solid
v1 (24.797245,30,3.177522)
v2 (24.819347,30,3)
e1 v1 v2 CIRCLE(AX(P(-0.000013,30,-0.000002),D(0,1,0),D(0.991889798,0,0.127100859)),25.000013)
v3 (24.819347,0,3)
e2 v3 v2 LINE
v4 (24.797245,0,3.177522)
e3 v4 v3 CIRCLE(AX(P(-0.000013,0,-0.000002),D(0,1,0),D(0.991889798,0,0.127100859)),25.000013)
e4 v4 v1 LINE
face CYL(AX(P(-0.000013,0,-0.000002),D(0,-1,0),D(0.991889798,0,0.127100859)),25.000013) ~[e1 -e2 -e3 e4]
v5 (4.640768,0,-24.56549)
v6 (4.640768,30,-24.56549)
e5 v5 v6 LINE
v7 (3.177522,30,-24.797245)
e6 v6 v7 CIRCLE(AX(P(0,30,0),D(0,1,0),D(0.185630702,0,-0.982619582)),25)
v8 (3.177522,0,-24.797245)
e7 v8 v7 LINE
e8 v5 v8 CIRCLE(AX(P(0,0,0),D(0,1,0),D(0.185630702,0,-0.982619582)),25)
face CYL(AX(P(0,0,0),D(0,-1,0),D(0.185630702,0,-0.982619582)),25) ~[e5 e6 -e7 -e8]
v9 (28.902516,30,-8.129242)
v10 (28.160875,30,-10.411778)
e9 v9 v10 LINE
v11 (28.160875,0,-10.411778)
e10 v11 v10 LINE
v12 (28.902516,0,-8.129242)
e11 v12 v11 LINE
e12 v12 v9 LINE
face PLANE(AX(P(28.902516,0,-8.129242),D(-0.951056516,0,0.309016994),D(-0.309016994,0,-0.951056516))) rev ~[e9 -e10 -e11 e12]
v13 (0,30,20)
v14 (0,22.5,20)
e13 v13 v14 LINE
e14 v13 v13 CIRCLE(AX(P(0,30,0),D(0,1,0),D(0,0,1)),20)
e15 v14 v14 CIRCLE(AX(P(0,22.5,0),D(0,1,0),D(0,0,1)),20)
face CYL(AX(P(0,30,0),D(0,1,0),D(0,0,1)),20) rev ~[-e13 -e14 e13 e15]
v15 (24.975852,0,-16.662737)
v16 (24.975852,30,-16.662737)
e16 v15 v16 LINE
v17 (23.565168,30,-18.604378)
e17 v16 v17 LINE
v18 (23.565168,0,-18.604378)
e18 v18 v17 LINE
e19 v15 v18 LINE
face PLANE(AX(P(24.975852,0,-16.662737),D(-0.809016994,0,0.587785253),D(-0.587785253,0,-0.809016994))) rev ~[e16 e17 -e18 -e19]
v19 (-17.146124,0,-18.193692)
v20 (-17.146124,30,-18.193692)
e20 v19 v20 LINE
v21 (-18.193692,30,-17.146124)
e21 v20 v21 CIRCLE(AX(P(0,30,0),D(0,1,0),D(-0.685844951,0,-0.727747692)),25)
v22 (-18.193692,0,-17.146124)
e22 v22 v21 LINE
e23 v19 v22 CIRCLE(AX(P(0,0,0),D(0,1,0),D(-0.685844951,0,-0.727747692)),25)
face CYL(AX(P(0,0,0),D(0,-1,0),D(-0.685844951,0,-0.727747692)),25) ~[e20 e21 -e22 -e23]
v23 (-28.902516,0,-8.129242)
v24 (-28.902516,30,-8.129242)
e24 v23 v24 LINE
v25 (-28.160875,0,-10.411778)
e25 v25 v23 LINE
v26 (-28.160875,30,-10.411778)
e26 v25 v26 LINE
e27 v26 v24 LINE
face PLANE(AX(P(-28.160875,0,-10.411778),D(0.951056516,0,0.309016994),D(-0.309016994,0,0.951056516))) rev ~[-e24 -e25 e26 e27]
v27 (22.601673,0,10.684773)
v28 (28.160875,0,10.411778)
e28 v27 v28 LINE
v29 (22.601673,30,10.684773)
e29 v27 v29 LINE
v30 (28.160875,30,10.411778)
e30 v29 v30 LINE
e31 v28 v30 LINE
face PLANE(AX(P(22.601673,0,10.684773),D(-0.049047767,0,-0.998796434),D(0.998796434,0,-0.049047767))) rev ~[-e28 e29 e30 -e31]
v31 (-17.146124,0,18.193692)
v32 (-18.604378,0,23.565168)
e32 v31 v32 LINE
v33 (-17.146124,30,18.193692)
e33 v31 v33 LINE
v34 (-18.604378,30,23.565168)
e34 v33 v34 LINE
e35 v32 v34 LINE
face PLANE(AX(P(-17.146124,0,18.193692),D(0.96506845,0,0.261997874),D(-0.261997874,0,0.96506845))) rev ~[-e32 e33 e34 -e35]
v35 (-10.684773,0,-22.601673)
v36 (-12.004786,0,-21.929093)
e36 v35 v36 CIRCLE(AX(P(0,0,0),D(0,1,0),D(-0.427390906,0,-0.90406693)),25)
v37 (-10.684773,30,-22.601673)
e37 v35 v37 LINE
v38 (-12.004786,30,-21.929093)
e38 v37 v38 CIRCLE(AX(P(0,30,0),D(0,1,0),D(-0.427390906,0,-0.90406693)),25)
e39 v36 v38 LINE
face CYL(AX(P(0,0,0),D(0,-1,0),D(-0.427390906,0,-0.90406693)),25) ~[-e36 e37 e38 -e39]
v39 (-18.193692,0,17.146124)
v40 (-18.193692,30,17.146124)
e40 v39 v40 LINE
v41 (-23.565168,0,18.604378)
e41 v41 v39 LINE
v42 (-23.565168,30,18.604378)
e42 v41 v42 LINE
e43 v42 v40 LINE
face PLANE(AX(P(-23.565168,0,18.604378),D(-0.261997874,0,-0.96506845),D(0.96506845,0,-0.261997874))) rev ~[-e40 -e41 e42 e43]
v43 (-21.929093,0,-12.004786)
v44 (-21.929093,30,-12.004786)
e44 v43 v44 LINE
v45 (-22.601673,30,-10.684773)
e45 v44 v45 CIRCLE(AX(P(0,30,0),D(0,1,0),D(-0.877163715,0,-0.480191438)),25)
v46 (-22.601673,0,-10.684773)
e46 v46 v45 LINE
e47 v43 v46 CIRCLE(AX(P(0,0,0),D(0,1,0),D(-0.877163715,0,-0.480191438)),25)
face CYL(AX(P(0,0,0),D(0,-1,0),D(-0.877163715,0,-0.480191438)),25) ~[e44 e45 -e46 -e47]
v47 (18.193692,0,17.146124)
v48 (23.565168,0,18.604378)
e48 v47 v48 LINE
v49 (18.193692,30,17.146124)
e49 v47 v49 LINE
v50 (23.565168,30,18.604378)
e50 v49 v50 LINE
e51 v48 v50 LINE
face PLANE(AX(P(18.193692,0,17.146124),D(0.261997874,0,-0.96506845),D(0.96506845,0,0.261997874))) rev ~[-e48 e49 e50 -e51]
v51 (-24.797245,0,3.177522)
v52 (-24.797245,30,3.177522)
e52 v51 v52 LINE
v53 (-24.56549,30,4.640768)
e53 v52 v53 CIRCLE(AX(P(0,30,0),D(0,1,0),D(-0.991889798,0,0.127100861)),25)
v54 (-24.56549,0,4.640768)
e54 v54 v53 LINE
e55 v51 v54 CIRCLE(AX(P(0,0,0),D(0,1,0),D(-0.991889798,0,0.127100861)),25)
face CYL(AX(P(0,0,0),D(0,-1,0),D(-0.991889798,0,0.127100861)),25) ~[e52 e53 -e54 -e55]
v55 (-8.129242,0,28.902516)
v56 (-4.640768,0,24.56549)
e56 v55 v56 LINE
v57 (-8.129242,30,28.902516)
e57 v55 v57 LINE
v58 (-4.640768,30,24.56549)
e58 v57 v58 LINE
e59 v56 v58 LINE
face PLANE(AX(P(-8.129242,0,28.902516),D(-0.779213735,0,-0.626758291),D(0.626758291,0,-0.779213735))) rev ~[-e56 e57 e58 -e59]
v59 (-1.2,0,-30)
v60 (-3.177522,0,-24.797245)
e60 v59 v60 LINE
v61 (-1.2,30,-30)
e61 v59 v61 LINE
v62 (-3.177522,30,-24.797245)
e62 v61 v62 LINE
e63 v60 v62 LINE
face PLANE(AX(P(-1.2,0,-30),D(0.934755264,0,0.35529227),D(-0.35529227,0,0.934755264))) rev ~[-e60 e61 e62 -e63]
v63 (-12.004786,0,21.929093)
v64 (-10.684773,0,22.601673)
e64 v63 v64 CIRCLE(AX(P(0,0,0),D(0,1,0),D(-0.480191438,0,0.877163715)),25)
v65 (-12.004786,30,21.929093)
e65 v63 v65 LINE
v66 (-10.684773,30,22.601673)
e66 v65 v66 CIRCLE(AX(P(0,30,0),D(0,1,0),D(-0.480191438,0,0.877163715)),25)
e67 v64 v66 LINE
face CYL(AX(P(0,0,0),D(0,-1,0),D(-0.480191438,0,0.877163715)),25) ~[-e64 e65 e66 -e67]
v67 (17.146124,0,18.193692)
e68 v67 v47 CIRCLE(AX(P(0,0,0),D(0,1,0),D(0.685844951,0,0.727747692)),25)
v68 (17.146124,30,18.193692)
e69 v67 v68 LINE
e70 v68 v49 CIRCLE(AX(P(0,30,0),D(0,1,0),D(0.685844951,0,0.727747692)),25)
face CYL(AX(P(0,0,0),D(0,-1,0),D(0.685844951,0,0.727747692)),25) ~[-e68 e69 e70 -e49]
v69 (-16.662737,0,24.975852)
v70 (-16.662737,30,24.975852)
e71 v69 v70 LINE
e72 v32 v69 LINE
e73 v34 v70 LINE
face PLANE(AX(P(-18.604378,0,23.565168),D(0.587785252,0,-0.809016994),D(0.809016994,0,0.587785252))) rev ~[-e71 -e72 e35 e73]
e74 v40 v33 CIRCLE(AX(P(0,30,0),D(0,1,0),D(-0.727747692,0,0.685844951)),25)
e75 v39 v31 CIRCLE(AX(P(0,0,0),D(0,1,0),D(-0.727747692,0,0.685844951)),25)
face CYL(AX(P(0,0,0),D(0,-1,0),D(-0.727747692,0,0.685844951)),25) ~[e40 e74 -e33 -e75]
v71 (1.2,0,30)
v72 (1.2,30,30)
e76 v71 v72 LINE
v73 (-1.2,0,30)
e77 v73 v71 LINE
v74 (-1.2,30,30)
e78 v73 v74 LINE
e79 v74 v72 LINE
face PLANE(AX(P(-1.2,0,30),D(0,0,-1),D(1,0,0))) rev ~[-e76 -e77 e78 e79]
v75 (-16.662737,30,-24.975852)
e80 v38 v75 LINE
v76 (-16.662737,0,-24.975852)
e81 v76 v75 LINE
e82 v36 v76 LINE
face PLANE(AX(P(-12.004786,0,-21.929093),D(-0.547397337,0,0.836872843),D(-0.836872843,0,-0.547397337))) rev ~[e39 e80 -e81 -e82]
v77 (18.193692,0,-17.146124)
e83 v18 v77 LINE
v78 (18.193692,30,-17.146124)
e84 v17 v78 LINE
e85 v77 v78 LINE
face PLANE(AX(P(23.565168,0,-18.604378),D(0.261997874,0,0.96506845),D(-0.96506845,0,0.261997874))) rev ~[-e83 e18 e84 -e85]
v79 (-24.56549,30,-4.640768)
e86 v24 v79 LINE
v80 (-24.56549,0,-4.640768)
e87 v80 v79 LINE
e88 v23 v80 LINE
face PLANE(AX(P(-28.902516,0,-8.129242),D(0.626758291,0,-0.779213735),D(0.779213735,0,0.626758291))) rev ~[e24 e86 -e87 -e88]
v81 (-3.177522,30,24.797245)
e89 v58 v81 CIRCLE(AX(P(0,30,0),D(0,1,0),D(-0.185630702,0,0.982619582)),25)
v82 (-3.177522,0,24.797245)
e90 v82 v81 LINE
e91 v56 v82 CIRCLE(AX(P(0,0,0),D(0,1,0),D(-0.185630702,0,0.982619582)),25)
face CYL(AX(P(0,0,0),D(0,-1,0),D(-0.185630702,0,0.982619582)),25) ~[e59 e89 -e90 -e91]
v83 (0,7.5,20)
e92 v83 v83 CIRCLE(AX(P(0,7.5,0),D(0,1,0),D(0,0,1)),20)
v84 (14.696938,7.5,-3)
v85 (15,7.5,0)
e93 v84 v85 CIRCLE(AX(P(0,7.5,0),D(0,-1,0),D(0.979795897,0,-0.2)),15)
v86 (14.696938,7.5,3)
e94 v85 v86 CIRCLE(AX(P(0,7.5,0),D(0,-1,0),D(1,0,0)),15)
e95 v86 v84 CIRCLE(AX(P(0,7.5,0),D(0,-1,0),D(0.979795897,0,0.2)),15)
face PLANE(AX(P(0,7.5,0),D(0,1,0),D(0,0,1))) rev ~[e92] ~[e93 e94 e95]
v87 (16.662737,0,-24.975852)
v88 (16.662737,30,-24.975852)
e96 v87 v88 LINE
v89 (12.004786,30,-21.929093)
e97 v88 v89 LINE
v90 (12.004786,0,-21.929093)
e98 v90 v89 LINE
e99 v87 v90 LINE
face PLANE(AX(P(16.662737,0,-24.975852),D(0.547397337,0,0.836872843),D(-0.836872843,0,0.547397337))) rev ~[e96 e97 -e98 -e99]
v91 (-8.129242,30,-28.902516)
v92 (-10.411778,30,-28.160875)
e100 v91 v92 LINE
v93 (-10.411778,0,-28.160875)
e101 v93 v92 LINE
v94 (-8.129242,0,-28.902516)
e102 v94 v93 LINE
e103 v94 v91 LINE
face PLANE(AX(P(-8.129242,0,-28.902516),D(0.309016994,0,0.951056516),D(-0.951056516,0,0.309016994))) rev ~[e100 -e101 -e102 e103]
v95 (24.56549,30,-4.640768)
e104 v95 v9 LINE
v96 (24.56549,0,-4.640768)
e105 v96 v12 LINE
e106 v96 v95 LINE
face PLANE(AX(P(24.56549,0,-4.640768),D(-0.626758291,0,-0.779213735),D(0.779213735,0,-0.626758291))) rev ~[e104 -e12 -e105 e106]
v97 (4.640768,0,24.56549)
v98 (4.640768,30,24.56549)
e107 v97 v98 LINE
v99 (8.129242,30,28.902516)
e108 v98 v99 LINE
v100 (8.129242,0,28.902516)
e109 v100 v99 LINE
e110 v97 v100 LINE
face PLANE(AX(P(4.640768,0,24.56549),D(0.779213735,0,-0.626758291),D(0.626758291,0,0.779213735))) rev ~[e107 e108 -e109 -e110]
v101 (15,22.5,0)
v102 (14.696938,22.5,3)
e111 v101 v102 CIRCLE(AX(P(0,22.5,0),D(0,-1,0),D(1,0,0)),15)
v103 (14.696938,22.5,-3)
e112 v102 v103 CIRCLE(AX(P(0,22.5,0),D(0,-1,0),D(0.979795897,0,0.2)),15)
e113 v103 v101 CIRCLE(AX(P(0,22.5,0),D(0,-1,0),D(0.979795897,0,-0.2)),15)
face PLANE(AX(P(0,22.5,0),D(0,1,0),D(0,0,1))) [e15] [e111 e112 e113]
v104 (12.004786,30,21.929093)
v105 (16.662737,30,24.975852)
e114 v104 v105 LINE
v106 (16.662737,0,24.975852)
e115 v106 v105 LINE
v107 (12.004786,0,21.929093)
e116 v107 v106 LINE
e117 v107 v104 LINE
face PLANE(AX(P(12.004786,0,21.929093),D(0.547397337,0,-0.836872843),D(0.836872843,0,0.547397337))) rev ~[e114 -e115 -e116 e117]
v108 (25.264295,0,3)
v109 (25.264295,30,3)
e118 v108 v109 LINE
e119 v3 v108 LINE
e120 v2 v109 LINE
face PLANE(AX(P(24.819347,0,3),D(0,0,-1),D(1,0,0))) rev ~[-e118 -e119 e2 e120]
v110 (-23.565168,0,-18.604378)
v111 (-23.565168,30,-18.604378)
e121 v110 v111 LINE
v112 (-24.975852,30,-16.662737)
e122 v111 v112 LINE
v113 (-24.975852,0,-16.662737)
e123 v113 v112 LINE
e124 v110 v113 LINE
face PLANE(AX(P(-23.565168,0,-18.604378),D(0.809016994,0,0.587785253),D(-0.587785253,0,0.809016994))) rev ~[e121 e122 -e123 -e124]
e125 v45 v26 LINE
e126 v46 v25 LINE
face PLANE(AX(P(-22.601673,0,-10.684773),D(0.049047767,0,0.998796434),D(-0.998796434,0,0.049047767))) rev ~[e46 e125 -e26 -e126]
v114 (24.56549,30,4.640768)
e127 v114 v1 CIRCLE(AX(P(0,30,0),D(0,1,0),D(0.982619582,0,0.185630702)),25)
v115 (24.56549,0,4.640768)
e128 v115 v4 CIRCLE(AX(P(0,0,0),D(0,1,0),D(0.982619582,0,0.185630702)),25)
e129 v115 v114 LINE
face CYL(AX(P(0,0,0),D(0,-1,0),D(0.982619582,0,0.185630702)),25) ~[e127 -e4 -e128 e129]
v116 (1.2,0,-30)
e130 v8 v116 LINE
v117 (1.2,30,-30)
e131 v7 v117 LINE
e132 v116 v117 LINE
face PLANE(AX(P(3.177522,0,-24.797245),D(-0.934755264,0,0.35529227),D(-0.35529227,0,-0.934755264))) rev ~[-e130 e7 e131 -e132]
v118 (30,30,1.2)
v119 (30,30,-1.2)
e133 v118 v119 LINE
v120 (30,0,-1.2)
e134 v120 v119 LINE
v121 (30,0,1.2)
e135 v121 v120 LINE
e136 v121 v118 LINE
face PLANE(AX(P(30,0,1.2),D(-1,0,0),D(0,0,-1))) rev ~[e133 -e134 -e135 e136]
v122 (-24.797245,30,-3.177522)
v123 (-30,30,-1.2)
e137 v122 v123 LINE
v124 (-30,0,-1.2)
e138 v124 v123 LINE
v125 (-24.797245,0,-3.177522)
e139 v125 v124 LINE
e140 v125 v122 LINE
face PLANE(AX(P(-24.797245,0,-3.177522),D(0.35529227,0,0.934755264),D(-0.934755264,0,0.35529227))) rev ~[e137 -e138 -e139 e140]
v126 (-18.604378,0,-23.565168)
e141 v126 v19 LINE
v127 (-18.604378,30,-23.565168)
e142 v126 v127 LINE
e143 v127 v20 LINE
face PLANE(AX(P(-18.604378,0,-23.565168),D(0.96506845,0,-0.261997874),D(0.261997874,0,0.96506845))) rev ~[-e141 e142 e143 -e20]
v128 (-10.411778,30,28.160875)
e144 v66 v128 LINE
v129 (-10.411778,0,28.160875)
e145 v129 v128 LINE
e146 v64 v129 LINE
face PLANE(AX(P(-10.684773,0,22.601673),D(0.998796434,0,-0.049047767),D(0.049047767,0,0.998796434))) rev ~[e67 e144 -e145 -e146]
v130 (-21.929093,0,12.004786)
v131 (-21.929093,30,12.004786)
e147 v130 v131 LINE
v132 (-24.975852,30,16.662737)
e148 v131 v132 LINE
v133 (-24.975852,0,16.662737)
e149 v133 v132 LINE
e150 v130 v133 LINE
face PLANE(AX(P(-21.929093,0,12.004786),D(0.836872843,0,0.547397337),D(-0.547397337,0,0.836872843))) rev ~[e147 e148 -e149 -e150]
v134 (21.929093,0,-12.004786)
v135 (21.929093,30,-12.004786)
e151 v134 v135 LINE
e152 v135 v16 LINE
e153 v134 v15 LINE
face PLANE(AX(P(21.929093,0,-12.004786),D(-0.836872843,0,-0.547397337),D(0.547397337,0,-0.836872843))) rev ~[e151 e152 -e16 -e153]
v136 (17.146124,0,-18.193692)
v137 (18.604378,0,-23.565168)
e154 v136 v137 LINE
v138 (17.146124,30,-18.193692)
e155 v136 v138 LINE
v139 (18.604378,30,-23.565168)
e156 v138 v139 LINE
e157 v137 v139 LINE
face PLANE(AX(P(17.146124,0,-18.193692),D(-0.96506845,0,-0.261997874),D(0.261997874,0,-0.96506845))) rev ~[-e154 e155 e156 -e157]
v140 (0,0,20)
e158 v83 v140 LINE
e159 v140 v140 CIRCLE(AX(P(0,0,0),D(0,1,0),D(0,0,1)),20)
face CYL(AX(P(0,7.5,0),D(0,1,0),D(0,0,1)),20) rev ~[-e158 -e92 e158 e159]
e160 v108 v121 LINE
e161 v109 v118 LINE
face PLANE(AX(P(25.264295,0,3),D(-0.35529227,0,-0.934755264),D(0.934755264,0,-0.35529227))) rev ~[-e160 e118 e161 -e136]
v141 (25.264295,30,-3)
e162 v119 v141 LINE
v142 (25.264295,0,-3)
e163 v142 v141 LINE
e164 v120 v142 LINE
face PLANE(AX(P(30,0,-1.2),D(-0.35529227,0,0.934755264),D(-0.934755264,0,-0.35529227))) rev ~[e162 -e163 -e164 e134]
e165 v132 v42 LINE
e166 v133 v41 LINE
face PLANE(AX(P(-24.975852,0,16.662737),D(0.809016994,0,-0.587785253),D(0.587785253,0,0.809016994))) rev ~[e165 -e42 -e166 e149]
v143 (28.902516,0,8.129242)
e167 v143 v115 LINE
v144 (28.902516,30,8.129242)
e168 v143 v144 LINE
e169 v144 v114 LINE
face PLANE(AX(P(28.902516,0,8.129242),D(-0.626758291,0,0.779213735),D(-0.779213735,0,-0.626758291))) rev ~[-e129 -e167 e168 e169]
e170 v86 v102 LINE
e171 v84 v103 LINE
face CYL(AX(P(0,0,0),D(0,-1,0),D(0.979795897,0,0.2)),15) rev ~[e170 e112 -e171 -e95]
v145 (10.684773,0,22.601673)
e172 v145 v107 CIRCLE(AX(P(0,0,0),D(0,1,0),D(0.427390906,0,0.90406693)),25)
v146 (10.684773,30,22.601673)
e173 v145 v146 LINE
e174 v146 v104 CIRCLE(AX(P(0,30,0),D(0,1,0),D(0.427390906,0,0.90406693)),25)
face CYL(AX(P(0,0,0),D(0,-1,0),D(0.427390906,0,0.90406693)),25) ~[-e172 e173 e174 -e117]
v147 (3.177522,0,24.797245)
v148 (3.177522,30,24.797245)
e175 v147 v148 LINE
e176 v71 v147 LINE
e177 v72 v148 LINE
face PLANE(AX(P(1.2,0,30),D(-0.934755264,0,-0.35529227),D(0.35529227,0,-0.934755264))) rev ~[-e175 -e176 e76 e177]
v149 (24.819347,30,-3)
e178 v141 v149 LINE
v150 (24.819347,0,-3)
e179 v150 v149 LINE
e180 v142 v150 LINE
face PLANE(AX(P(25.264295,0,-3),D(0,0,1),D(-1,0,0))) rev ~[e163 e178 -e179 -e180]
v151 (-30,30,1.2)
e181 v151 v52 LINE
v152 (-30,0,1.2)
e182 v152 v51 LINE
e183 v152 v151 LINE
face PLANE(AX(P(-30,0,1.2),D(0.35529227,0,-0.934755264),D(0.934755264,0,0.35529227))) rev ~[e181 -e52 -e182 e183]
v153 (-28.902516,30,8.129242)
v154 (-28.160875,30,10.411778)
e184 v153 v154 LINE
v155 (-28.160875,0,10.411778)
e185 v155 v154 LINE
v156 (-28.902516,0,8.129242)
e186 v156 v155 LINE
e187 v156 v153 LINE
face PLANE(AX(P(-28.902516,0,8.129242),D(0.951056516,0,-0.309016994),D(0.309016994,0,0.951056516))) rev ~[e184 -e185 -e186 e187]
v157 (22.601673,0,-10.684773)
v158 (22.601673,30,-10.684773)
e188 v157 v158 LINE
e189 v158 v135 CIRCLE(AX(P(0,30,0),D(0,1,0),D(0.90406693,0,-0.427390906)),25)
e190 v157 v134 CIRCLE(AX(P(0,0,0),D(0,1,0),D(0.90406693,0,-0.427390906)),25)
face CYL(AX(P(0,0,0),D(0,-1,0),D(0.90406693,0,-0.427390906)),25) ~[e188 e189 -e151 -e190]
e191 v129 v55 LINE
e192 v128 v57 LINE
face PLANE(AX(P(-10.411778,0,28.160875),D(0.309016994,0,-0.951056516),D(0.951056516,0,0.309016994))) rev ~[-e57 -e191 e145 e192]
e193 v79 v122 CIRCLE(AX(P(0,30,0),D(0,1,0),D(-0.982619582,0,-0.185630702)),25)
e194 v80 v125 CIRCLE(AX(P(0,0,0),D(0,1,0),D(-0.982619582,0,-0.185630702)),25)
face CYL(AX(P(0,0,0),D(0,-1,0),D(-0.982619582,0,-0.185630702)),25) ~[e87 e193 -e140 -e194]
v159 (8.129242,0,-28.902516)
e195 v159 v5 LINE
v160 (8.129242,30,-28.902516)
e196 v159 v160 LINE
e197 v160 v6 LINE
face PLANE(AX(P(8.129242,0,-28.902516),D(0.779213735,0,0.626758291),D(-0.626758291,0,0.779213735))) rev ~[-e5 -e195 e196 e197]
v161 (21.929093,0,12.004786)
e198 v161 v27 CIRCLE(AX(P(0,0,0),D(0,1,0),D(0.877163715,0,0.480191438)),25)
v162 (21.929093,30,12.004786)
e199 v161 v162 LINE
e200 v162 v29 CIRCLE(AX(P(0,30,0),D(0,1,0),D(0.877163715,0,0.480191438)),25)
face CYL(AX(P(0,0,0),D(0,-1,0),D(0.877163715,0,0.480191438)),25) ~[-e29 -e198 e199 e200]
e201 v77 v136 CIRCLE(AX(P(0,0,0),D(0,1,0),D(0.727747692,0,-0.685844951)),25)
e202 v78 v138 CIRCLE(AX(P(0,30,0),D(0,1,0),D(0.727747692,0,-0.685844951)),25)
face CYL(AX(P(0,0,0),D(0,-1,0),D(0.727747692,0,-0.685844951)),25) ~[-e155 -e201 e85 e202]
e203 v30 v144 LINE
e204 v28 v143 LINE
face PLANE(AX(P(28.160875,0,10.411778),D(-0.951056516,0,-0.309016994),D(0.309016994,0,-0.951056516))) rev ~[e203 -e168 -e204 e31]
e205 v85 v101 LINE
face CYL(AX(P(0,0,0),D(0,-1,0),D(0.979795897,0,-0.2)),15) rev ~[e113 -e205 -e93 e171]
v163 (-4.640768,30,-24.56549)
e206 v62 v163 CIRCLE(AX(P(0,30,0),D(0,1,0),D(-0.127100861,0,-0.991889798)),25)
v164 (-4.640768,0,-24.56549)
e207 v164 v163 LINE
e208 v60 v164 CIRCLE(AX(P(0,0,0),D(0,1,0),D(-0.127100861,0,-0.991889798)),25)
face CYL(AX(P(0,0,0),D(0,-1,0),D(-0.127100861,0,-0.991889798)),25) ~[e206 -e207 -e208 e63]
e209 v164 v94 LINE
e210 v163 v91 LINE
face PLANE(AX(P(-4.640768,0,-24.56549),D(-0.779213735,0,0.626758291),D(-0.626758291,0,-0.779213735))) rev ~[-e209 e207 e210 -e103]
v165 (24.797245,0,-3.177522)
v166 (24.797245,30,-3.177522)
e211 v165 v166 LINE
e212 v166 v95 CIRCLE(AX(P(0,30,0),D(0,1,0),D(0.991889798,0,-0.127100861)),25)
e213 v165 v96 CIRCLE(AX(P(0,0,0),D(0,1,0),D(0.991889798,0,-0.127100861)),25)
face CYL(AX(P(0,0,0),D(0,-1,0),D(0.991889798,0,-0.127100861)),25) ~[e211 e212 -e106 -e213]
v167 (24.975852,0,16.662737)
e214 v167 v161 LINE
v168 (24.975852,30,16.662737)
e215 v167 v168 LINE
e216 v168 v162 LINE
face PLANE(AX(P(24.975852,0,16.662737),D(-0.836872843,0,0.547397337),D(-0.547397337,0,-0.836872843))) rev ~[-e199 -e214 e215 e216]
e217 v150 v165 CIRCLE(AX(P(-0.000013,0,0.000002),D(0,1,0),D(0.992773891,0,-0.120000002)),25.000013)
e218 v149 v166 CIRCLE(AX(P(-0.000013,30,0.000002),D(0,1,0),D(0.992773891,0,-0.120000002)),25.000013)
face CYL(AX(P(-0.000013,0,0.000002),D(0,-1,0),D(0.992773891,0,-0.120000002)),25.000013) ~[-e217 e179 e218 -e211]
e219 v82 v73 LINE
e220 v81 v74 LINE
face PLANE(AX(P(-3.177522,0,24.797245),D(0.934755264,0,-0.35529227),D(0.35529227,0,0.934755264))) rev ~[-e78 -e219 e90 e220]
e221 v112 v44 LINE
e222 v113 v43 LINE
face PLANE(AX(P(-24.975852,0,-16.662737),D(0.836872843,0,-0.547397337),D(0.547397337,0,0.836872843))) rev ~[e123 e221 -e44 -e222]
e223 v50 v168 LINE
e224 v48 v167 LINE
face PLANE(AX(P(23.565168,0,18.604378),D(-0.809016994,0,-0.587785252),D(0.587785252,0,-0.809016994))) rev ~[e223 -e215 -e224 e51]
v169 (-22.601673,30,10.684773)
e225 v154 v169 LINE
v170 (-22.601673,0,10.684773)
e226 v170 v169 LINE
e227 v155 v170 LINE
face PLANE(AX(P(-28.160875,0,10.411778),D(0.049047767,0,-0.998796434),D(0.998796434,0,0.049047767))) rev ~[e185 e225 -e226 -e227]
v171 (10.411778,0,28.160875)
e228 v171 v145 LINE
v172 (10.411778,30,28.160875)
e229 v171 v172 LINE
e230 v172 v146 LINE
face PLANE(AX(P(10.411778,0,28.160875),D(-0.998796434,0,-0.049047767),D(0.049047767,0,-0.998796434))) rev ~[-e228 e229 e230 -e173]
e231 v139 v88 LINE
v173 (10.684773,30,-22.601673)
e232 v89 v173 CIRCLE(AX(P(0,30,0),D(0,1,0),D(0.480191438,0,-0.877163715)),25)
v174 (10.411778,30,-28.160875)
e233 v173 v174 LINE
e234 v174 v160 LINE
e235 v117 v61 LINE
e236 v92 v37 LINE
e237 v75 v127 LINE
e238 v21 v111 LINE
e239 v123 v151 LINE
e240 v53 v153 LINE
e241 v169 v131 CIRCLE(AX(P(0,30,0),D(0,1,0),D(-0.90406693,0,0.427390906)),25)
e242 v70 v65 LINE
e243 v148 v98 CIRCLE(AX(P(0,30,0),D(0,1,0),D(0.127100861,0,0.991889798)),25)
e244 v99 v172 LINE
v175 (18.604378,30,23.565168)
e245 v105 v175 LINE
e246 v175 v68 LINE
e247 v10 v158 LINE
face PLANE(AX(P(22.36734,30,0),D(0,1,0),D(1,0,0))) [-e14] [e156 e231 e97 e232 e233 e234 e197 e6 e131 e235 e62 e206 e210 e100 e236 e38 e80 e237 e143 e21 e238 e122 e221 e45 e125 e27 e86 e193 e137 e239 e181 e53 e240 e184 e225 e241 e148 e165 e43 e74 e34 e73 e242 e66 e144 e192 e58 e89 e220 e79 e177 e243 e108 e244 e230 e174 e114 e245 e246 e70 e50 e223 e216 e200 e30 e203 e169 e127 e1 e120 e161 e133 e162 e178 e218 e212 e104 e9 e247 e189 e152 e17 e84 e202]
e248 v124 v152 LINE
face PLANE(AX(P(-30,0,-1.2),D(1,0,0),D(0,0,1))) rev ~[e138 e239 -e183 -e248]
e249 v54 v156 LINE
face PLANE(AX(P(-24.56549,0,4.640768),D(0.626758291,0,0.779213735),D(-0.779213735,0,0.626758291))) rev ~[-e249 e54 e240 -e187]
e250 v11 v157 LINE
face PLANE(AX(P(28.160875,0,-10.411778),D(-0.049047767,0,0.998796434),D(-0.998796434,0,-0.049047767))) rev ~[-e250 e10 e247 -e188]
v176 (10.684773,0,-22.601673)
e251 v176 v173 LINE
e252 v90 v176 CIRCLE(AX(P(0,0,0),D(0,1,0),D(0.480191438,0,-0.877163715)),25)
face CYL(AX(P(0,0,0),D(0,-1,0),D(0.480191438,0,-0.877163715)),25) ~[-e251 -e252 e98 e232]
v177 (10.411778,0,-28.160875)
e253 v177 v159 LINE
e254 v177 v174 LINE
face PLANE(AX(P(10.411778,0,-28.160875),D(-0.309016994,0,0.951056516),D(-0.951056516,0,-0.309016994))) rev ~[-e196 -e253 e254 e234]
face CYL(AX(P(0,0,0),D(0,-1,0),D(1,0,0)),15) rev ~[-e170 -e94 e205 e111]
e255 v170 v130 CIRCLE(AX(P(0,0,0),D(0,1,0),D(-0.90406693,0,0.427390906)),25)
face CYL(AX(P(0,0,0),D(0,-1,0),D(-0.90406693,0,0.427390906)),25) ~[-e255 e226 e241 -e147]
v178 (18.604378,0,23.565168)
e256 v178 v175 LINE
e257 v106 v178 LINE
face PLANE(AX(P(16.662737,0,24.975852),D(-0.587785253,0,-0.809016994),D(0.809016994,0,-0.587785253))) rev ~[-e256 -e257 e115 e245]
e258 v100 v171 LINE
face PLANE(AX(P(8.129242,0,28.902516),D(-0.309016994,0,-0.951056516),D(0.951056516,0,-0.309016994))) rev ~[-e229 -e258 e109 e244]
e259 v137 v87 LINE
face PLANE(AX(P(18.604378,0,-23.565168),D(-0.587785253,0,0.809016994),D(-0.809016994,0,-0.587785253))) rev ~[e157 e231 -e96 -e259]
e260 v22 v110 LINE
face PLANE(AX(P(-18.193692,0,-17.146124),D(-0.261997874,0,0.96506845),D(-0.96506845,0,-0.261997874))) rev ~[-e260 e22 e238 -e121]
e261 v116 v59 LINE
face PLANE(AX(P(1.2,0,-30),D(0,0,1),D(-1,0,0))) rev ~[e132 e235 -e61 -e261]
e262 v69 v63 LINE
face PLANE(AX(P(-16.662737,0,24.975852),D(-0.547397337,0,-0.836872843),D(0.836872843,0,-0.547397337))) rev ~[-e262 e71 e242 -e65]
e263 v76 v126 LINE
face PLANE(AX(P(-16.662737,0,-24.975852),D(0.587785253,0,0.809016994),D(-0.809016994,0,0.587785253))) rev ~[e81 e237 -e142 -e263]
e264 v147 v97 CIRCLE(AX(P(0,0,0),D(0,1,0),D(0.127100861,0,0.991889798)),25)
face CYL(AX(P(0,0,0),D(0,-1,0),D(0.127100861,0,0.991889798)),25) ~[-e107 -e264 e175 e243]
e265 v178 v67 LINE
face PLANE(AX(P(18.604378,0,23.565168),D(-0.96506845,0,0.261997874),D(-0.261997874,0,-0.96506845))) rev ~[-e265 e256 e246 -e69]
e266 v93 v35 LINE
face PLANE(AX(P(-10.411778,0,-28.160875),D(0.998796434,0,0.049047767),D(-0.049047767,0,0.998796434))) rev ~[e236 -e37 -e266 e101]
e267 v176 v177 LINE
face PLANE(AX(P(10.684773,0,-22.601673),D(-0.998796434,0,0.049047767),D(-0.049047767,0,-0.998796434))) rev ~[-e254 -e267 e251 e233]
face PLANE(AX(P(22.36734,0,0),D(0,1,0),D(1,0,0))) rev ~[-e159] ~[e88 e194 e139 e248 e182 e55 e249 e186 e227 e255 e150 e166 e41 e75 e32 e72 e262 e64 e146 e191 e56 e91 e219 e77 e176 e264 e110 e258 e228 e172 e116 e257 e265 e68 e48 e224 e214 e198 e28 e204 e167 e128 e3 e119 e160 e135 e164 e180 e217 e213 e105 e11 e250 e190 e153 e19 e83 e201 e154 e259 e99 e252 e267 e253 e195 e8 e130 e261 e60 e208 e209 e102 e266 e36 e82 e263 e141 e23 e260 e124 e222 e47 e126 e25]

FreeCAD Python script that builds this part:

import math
import FreeCAD as App
import Part
import Sketcher
from FreeCAD import Vector
Q = App.Units.Quantity

doc = App.newDocument("Part")
body = doc.addObject("PartDesign::Body", "Body")

sketch1 = body.newObject("Sketcher::SketchObject", "Sketch")
sketch1.AttachmentSupport = (doc.getObject("XZ_Plane"), [""])
sketch1.MapMode = "FlatFace"
sketch1.addGeometry(Part.ArcOfCircle(Part.Circle(Vector(0, 0, 0), Vector(0, 0, 1), 25), math.radians(7.302094), math.radians(10.697906)), False)
sketch1.addGeometry(Part.ArcOfCircle(Part.Circle(Vector(-0.000013, -0.000002, 0), Vector(0, 0, 1), 25.000013), math.radians(6.892103), math.radians(7.302094)), False)
sketch1.addGeometry(Part.LineSegment(Vector(24.819347, 3, 0), Vector(25.264295, 3, 0)), False)
sketch1.addGeometry(Part.LineSegment(Vector(25.264295, 3, 0), Vector(30, 1.2, 0)), False)
sketch1.addGeometry(Part.LineSegment(Vector(30, 1.2, 0), Vector(30, -1.2, 0)), False)
sketch1.addGeometry(Part.LineSegment(Vector(30, -1.2, 0), Vector(25.264295, -3, 0)), False)
sketch1.addGeometry(Part.LineSegment(Vector(25.264295, -3, 0), Vector(24.819347, -3, 0)), False)
sketch1.addGeometry(Part.ArcOfCircle(Part.Circle(Vector(-0.000013, 0.000002, 0), Vector(0, 0, 1), 25.000013), math.radians(-7.302094), math.radians(-6.892103)), False)
sketch1.addGeometry(Part.ArcOfCircle(Part.Circle(Vector(0, 0, 0), Vector(0, 0, 1), 25), math.radians(-10.697906), math.radians(-7.302094)), False)
sketch1.addGeometry(Part.LineSegment(Vector(24.56549, -4.640768, 0), Vector(28.902516, -8.129242, 0)), False)
sketch1.addGeometry(Part.LineSegment(Vector(28.902516, -8.129242, 0), Vector(28.160875, -10.411778, 0)), False)
sketch1.addGeometry(Part.LineSegment(Vector(28.160875, -10.411778, 0), Vector(22.601673, -10.684773, 0)), False)
sketch1.addGeometry(Part.ArcOfCircle(Part.Circle(Vector(0, 0, 0), Vector(0, 0, 1), 25), math.radians(-28.697906), math.radians(-25.302094)), False)
sketch1.addGeometry(Part.LineSegment(Vector(21.929093, -12.004786, 0), Vector(24.975852, -16.662737, 0)), False)
sketch1.addGeometry(Part.LineSegment(Vector(24.975852, -16.662737, 0), Vector(23.565168, -18.604378, 0)), False)
sketch1.addGeometry(Part.LineSegment(Vector(23.565168, -18.604378, 0), Vector(18.193692, -17.146124, 0)), False)
sketch1.addGeometry(Part.ArcOfCircle(Part.Circle(Vector(0, 0, 0), Vector(0, 0, 1), 25), math.radians(-46.697906), math.radians(-43.302094)), False)
sketch1.addGeometry(Part.LineSegment(Vector(17.146124, -18.193692, 0), Vector(18.604378, -23.565168, 0)), False)
sketch1.addGeometry(Part.LineSegment(Vector(18.604378, -23.565168, 0), Vector(16.662737, -24.975852, 0)), False)
sketch1.addGeometry(Part.LineSegment(Vector(16.662737, -24.975852, 0), Vector(12.004786, -21.929093, 0)), False)
sketch1.addGeometry(Part.ArcOfCircle(Part.Circle(Vector(0, 0, 0), Vector(0, 0, 1), 25), math.radians(-64.697906), math.radians(-61.302094)), False)
sketch1.addGeometry(Part.LineSegment(Vector(10.684773, -22.601673, 0), Vector(10.411778, -28.160875, 0)), False)
sketch1.addGeometry(Part.LineSegment(Vector(10.411778, -28.160875, 0), Vector(8.129242, -28.902516, 0)), False)
sketch1.addGeometry(Part.LineSegment(Vector(8.129242, -28.902516, 0), Vector(4.640768, -24.56549, 0)), False)
sketch1.addGeometry(Part.ArcOfCircle(Part.Circle(Vector(0, 0, 0), Vector(0, 0, 1), 25), math.radians(-82.697906), math.radians(-79.302094)), False)
sketch1.addGeometry(Part.LineSegment(Vector(3.177522, -24.797245, 0), Vector(1.2, -30, 0)), False)
sketch1.addGeometry(Part.LineSegment(Vector(1.2, -30, 0), Vector(-1.2, -30, 0)), False)
sketch1.addGeometry(Part.LineSegment(Vector(-1.2, -30, 0), Vector(-3.177522, -24.797245, 0)), False)
sketch1.addGeometry(Part.ArcOfCircle(Part.Circle(Vector(0, 0, 0), Vector(0, 0, 1), 25), math.radians(-100.697906), math.radians(-97.302094)), False)
sketch1.addGeometry(Part.LineSegment(Vector(-4.640768, -24.56549, 0), Vector(-8.129242, -28.902516, 0)), False)
sketch1.addGeometry(Part.LineSegment(Vector(-8.129242, -28.902516, 0), Vector(-10.411778, -28.160875, 0)), False)
sketch1.addGeometry(Part.LineSegment(Vector(-10.411778, -28.160875, 0), Vector(-10.684773, -22.601673, 0)), False)
sketch1.addGeometry(Part.ArcOfCircle(Part.Circle(Vector(0, 0, 0), Vector(0, 0, 1), 25), math.radians(-118.697906), math.radians(-115.302094)), False)
sketch1.addGeometry(Part.LineSegment(Vector(-12.004786, -21.929093, 0), Vector(-16.662737, -24.975852, 0)), False)
sketch1.addGeometry(Part.LineSegment(Vector(-16.662737, -24.975852, 0), Vector(-18.604378, -23.565168, 0)), False)
sketch1.addGeometry(Part.LineSegment(Vector(-18.604378, -23.565168, 0), Vector(-17.146124, -18.193692, 0)), False)
sketch1.addGeometry(Part.ArcOfCircle(Part.Circle(Vector(0, 0, 0), Vector(0, 0, 1), 25), math.radians(-136.697906), math.radians(-133.302094)), False)
sketch1.addGeometry(Part.LineSegment(Vector(-18.193692, -17.146124, 0), Vector(-23.565168, -18.604378, 0)), False)
sketch1.addGeometry(Part.LineSegment(Vector(-23.565168, -18.604378, 0), Vector(-24.975852, -16.662737, 0)), False)
sketch1.addGeometry(Part.LineSegment(Vector(-24.975852, -16.662737, 0), Vector(-21.929093, -12.004786, 0)), False)
sketch1.addGeometry(Part.ArcOfCircle(Part.Circle(Vector(0, 0, 0), Vector(0, 0, 1), 25), math.radians(-154.697906), math.radians(-151.302094)), False)
sketch1.addGeometry(Part.LineSegment(Vector(-22.601673, -10.684773, 0), Vector(-28.160875, -10.411778, 0)), False)
sketch1.addGeometry(Part.LineSegment(Vector(-28.160875, -10.411778, 0), Vector(-28.902516, -8.129242, 0)), False)
sketch1.addGeometry(Part.LineSegment(Vector(-28.902516, -8.129242, 0), Vector(-24.56549, -4.640768, 0)), False)
sketch1.addGeometry(Part.ArcOfCircle(Part.Circle(Vector(0, 0, 0), Vector(0, 0, 1), 25), math.radians(-172.697906), math.radians(-169.302094)), False)
sketch1.addGeometry(Part.LineSegment(Vector(-24.797245, -3.177522, 0), Vector(-30, -1.2, 0)), False)
sketch1.addGeometry(Part.LineSegment(Vector(-30, -1.2, 0), Vector(-30, 1.2, 0)), False)
sketch1.addGeometry(Part.LineSegment(Vector(-30, 1.2, 0), Vector(-24.797245, 3.177522, 0)), False)
sketch1.addGeometry(Part.ArcOfCircle(Part.Circle(Vector(0, 0, 0), Vector(0, 0, 1), 25), math.radians(169.302094), math.radians(172.697906)), False)
sketch1.addGeometry(Part.LineSegment(Vector(-24.56549, 4.640768, 0), Vector(-28.902516, 8.129242, 0)), False)
sketch1.addGeometry(Part.LineSegment(Vector(-28.902516, 8.129242, 0), Vector(-28.160875, 10.411778, 0)), False)
sketch1.addGeometry(Part.LineSegment(Vector(-28.160875, 10.411778, 0), Vector(-22.601673, 10.684773, 0)), False)
sketch1.addGeometry(Part.ArcOfCircle(Part.Circle(Vector(0, 0, 0), Vector(0, 0, 1), 25), math.radians(151.302094), math.radians(154.697906)), False)
sketch1.addGeometry(Part.LineSegment(Vector(-21.929093, 12.004786, 0), Vector(-24.975852, 16.662737, 0)), False)
sketch1.addGeometry(Part.LineSegment(Vector(-24.975852, 16.662737, 0), Vector(-23.565168, 18.604378, 0)), False)
sketch1.addGeometry(Part.LineSegment(Vector(-23.565168, 18.604378, 0), Vector(-18.193692, 17.146124, 0)), False)
sketch1.addGeometry(Part.ArcOfCircle(Part.Circle(Vector(0, 0, 0), Vector(0, 0, 1), 25), math.radians(133.302094), math.radians(136.697906)), False)
sketch1.addGeometry(Part.LineSegment(Vector(-17.146124, 18.193692, 0), Vector(-18.604378, 23.565168, 0)), False)
sketch1.addGeometry(Part.LineSegment(Vector(-18.604378, 23.565168, 0), Vector(-16.662737, 24.975852, 0)), False)
sketch1.addGeometry(Part.LineSegment(Vector(-16.662737, 24.975852, 0), Vector(-12.004786, 21.929093, 0)), False)
sketch1.addGeometry(Part.ArcOfCircle(Part.Circle(Vector(0, 0, 0), Vector(0, 0, 1), 25), math.radians(115.302094), math.radians(118.697906)), False)
sketch1.addGeometry(Part.LineSegment(Vector(-10.684773, 22.601673, 0), Vector(-10.411778, 28.160875, 0)), False)
sketch1.addGeometry(Part.LineSegment(Vector(-10.411778, 28.160875, 0), Vector(-8.129242, 28.902516, 0)), False)
sketch1.addGeometry(Part.LineSegment(Vector(-8.129242, 28.902516, 0), Vector(-4.640768, 24.56549, 0)), False)
sketch1.addGeometry(Part.ArcOfCircle(Part.Circle(Vector(0, 0, 0), Vector(0, 0, 1), 25), math.radians(97.302094), math.radians(100.697906)), False)
sketch1.addGeometry(Part.LineSegment(Vector(-3.177522, 24.797245, 0), Vector(-1.2, 30, 0)), False)
sketch1.addGeometry(Part.LineSegment(Vector(-1.2, 30, 0), Vector(1.2, 30, 0)), False)
sketch1.addGeometry(Part.LineSegment(Vector(1.2, 30, 0), Vector(3.177522, 24.797245, 0)), False)
sketch1.addGeometry(Part.ArcOfCircle(Part.Circle(Vector(0, 0, 0), Vector(0, 0, 1), 25), math.radians(79.302094), math.radians(82.697906)), False)
sketch1.addGeometry(Part.LineSegment(Vector(4.640768, 24.56549, 0), Vector(8.129242, 28.902516, 0)), False)
sketch1.addGeometry(Part.LineSegment(Vector(8.129242, 28.902516, 0), Vector(10.411778, 28.160875, 0)), False)
sketch1.addGeometry(Part.LineSegment(Vector(10.411778, 28.160875, 0), Vector(10.684773, 22.601673, 0)), False)
sketch1.addGeometry(Part.ArcOfCircle(Part.Circle(Vector(0, 0, 0), Vector(0, 0, 1), 25), math.radians(61.302094), math.radians(64.697906)), False)
sketch1.addGeometry(Part.LineSegment(Vector(12.004786, 21.929093, 0), Vector(16.662737, 24.975852, 0)), False)
sketch1.addGeometry(Part.LineSegment(Vector(16.662737, 24.975852, 0), Vector(18.604378, 23.565168, 0)), False)
sketch1.addGeometry(Part.LineSegment(Vector(18.604378, 23.565168, 0), Vector(17.146124, 18.193692, 0)), False)
sketch1.addGeometry(Part.ArcOfCircle(Part.Circle(Vector(0, 0, 0), Vector(0, 0, 1), 25), math.radians(43.302094), math.radians(46.697906)), False)
sketch1.addGeometry(Part.LineSegment(Vector(18.193692, 17.146124, 0), Vector(23.565168, 18.604378, 0)), False)
sketch1.addGeometry(Part.LineSegment(Vector(23.565168, 18.604378, 0), Vector(24.975852, 16.662737, 0)), False)
sketch1.addGeometry(Part.LineSegment(Vector(24.975852, 16.662737, 0), Vector(21.929093, 12.004786, 0)), False)
sketch1.addGeometry(Part.ArcOfCircle(Part.Circle(Vector(0, 0, 0), Vector(0, 0, 1), 25), math.radians(25.302094), math.radians(28.697906)), False)
sketch1.addGeometry(Part.LineSegment(Vector(22.601673, 10.684773, 0), Vector(28.160875, 10.411778, 0)), False)
sketch1.addGeometry(Part.LineSegment(Vector(28.160875, 10.411778, 0), Vector(28.902516, 8.129242, 0)), False)
sketch1.addGeometry(Part.LineSegment(Vector(28.902516, 8.129242, 0), Vector(24.56549, 4.640768, 0)), False)
sketch1.addGeometry(Part.ArcOfCircle(Part.Circle(Vector(0, 0, 0), Vector(0, 0, 1), 15), math.radians(0), math.radians(11.536959)), False)
sketch1.addGeometry(Part.ArcOfCircle(Part.Circle(Vector(0, 0, 0), Vector(0, 0, 1), 15), math.radians(11.536959), math.radians(348.463041)), False)
sketch1.addGeometry(Part.ArcOfCircle(Part.Circle(Vector(0, 0, 0), Vector(0, 0, 1), 15), math.radians(-11.536959), math.radians(0)), False)
sketch1.addConstraint(Sketcher.Constraint("Tangent", 0, 1, 1, 2))
sketch1.addConstraint(Sketcher.Constraint("Coincident", 1, 1, 2, 1))
sketch1.addConstraint(Sketcher.Constraint("Coincident", 2, 2, 3, 1))
sketch1.addConstraint(Sketcher.Constraint("Coincident", 3, 2, 4, 1))
sketch1.addConstraint(Sketcher.Constraint("Coincident", 4, 2, 5, 1))
sketch1.addConstraint(Sketcher.Constraint("Coincident", 5, 2, 6, 1))
sketch1.addConstraint(Sketcher.Constraint("Coincident", 6, 2, 7, 2))
sketch1.addConstraint(Sketcher.Constraint("Tangent", 7, 1, 8, 2))
sketch1.addConstraint(Sketcher.Constraint("Coincident", 8, 1, 9, 1))
sketch1.addConstraint(Sketcher.Constraint("Coincident", 9, 2, 10, 1))
sketch1.addConstraint(Sketcher.Constraint("Coincident", 10, 2, 11, 1))
sketch1.addConstraint(Sketcher.Constraint("Coincident", 11, 2, 12, 2))
sketch1.addConstraint(Sketcher.Constraint("Coincident", 12, 1, 13, 1))
sketch1.addConstraint(Sketcher.Constraint("Coincident", 13, 2, 14, 1))
sketch1.addConstraint(Sketcher.Constraint("Coincident", 14, 2, 15, 1))
sketch1.addConstraint(Sketcher.Constraint("Coincident", 15, 2, 16, 2))
sketch1.addConstraint(Sketcher.Constraint("Coincident", 16, 1, 17, 1))
sketch1.addConstraint(Sketcher.Constraint("Coincident", 17, 2, 18, 1))
sketch1.addConstraint(Sketcher.Constraint("Coincident", 18, 2, 19, 1))
sketch1.addConstraint(Sketcher.Constraint("Coincident", 19, 2, 20, 2))
sketch1.addConstraint(Sketcher.Constraint("Coincident", 20, 1, 21, 1))
sketch1.addConstraint(Sketcher.Constraint("Coincident", 21, 2, 22, 1))
sketch1.addConstraint(Sketcher.Constraint("Coincident", 22, 2, 23, 1))
sketch1.addConstraint(Sketcher.Constraint("Coincident", 23, 2, 24, 2))
sketch1.addConstraint(Sketcher.Constraint("Coincident", 24, 1, 25, 1))
sketch1.addConstraint(Sketcher.Constraint("Coincident", 25, 2, 26, 1))
sketch1.addConstraint(Sketcher.Constraint("Coincident", 26, 2, 27, 1))
sketch1.addConstraint(Sketcher.Constraint("Coincident", 27, 2, 28, 2))
sketch1.addConstraint(Sketcher.Constraint("Coincident", 28, 1, 29, 1))
sketch1.addConstraint(Sketcher.Constraint("Coincident", 29, 2, 30, 1))
sketch1.addConstraint(Sketcher.Constraint("Coincident", 30, 2, 31, 1))
sketch1.addConstraint(Sketcher.Constraint("Coincident", 31, 2, 32, 2))
sketch1.addConstraint(Sketcher.Constraint("Coincident", 32, 1, 33, 1))
sketch1.addConstraint(Sketcher.Constraint("Coincident", 33, 2, 34, 1))
sketch1.addConstraint(Sketcher.Constraint("Coincident", 34, 2, 35, 1))
sketch1.addConstraint(Sketcher.Constraint("Coincident", 35, 2, 36, 2))
sketch1.addConstraint(Sketcher.Constraint("Coincident", 36, 1, 37, 1))
sketch1.addConstraint(Sketcher.Constraint("Coincident", 37, 2, 38, 1))
sketch1.addConstraint(Sketcher.Constraint("Coincident", 38, 2, 39, 1))
sketch1.addConstraint(Sketcher.Constraint("Coincident", 39, 2, 40, 2))
sketch1.addConstraint(Sketcher.Constraint("Coincident", 40, 1, 41, 1))
sketch1.addConstraint(Sketcher.Constraint("Coincident", 41, 2, 42, 1))
sketch1.addConstraint(Sketcher.Constraint("Coincident", 42, 2, 43, 1))
sketch1.addConstraint(Sketcher.Constraint("Coincident", 43, 2, 44, 2))
sketch1.addConstraint(Sketcher.Constraint("Coincident", 44, 1, 45, 1))
sketch1.addConstraint(Sketcher.Constraint("Coincident", 45, 2, 46, 1))
sketch1.addConstraint(Sketcher.Constraint("Coincident", 46, 2, 47, 1))
sketch1.addConstraint(Sketcher.Constraint("Coincident", 47, 2, 48, 2))
sketch1.addConstraint(Sketcher.Constraint("Coincident", 48, 1, 49, 1))
sketch1.addConstraint(Sketcher.Constraint("Coincident", 49, 2, 50, 1))
sketch1.addConstraint(Sketcher.Constraint("Coincident", 50, 2, 51, 1))
sketch1.addConstraint(Sketcher.Constraint("Coincident", 51, 2, 52, 2))
sketch1.addConstraint(Sketcher.Constraint("Coincident", 52, 1, 53, 1))
sketch1.addConstraint(Sketcher.Constraint("Coincident", 53, 2, 54, 1))
sketch1.addConstraint(Sketcher.Constraint("Coincident", 54, 2, 55, 1))
sketch1.addConstraint(Sketcher.Constraint("Coincident", 55, 2, 56, 2))
sketch1.addConstraint(Sketcher.Constraint("Coincident", 56, 1, 57, 1))
sketch1.addConstraint(Sketcher.Constraint("Coincident", 57, 2, 58, 1))
sketch1.addConstraint(Sketcher.Constraint("Coincident", 58, 2, 59, 1))
sketch1.addConstraint(Sketcher.Constraint("Coincident", 59, 2, 60, 2))
sketch1.addConstraint(Sketcher.Constraint("Coincident", 60, 1, 61, 1))
sketch1.addConstraint(Sketcher.Constraint("Coincident", 61, 2, 62, 1))
sketch1.addConstraint(Sketcher.Constraint("Coincident", 62, 2, 63, 1))
sketch1.addConstraint(Sketcher.Constraint("Coincident", 63, 2, 64, 2))
sketch1.addConstraint(Sketcher.Constraint("Coincident", 64, 1, 65, 1))
sketch1.addConstraint(Sketcher.Constraint("Coincident", 65, 2, 66, 1))
sketch1.addConstraint(Sketcher.Constraint("Coincident", 66, 2, 67, 1))
sketch1.addConstraint(Sketcher.Constraint("Coincident", 67, 2, 68, 2))
sketch1.addConstraint(Sketcher.Constraint("Coincident", 68, 1, 69, 1))
sketch1.addConstraint(Sketcher.Constraint("Coincident", 69, 2, 70, 1))
sketch1.addConstraint(Sketcher.Constraint("Coincident", 70, 2, 71, 1))
sketch1.addConstraint(Sketcher.Constraint("Coincident", 71, 2, 72, 2))
sketch1.addConstraint(Sketcher.Constraint("Coincident", 72, 1, 73, 1))
sketch1.addConstraint(Sketcher.Constraint("Coincident", 73, 2, 74, 1))
sketch1.addConstraint(Sketcher.Constraint("Coincident", 74, 2, 75, 1))
sketch1.addConstraint(Sketcher.Constraint("Coincident", 75, 2, 76, 2))
sketch1.addConstraint(Sketcher.Constraint("Coincident", 76, 1, 77, 1))
sketch1.addConstraint(Sketcher.Constraint("Coincident", 77, 2, 78, 1))
sketch1.addConstraint(Sketcher.Constraint("Coincident", 78, 2, 79, 1))
sketch1.addConstraint(Sketcher.Constraint("Coincident", 79, 2, 80, 2))
sketch1.addConstraint(Sketcher.Constraint("Coincident", 80, 1, 81, 1))
sketch1.addConstraint(Sketcher.Constraint("Coincident", 81, 2, 82, 1))
sketch1.addConstraint(Sketcher.Constraint("Coincident", 82, 2, 83, 1))
sketch1.addConstraint(Sketcher.Constraint("Coincident", 83, 2, 0, 2))
sketch1.addConstraint(Sketcher.Constraint("Tangent", 84, 2, 85, 1))
sketch1.addConstraint(Sketcher.Constraint("Tangent", 85, 2, 86, 1))
sketch1.addConstraint(Sketcher.Constraint("Tangent", 86, 2, 84, 1))
sketch1.addConstraint(Sketcher.Constraint("Horizontal", 2))
sketch1.addConstraint(Sketcher.Constraint("Vertical", 4))
sketch1.addConstraint(Sketcher.Constraint("Horizontal", 6))
sketch1.addConstraint(Sketcher.Constraint("Horizontal", 26))
sketch1.addConstraint(Sketcher.Constraint("Vertical", 46))
sketch1.addConstraint(Sketcher.Constraint("Horizontal", 66))
sketch1.addConstraint(Sketcher.Constraint("Coincident", 0, 3, -1, 1))
sketch1.addConstraint(Sketcher.Constraint("Coincident", 8, 3, -1, 1))
sketch1.addConstraint(Sketcher.Constraint("Coincident", 12, 3, -1, 1))
sketch1.addConstraint(Sketcher.Constraint("Coincident", 16, 3, -1, 1))
sketch1.addConstraint(Sketcher.Constraint("Coincident", 20, 3, -1, 1))
sketch1.addConstraint(Sketcher.Constraint("Coincident", 24, 3, -1, 1))
sketch1.addConstraint(Sketcher.Constraint("Coincident", 28, 3, -1, 1))
sketch1.addConstraint(Sketcher.Constraint("Coincident", 32, 3, -1, 1))
sketch1.addConstraint(Sketcher.Constraint("Coincident", 36, 3, -1, 1))
sketch1.addConstraint(Sketcher.Constraint("Coincident", 40, 3, -1, 1))
sketch1.addConstraint(Sketcher.Constraint("Coincident", 44, 3, -1, 1))
sketch1.addConstraint(Sketcher.Constraint("Coincident", 48, 3, -1, 1))
sketch1.addConstraint(Sketcher.Constraint("Coincident", 52, 3, -1, 1))
sketch1.addConstraint(Sketcher.Constraint("Coincident", 56, 3, -1, 1))
sketch1.addConstraint(Sketcher.Constraint("Coincident", 60, 3, -1, 1))
sketch1.addConstraint(Sketcher.Constraint("Coincident", 64, 3, -1, 1))
sketch1.addConstraint(Sketcher.Constraint("Coincident", 68, 3, -1, 1))
sketch1.addConstraint(Sketcher.Constraint("Coincident", 72, 3, -1, 1))
sketch1.addConstraint(Sketcher.Constraint("Coincident", 76, 3, -1, 1))
sketch1.addConstraint(Sketcher.Constraint("Coincident", 80, 3, -1, 1))
sketch1.addConstraint(Sketcher.Constraint("Coincident", 84, 3, -1, 1))
sketch1.addConstraint(Sketcher.Constraint("Coincident", 7, 3, 1, 3))
sketch1.addConstraint(Sketcher.Constraint("Equal", 1, 7))
sketch1.addConstraint(Sketcher.Constraint("Equal", 8, 12))
sketch1.addConstraint(Sketcher.Constraint("Equal", 12, 16))
sketch1.addConstraint(Sketcher.Constraint("Equal", 16, 20))
sketch1.addConstraint(Sketcher.Constraint("Equal", 20, 24))
sketch1.addConstraint(Sketcher.Constraint("Equal", 24, 28))
sketch1.addConstraint(Sketcher.Constraint("Equal", 28, 32))
sketch1.addConstraint(Sketcher.Constraint("Equal", 32, 36))
sketch1.addConstraint(Sketcher.Constraint("Equal", 36, 40))
sketch1.addConstraint(Sketcher.Constraint("Equal", 40, 44))
sketch1.addConstraint(Sketcher.Constraint("Equal", 44, 48))
sketch1.addConstraint(Sketcher.Constraint("Equal", 48, 52))
sketch1.addConstraint(Sketcher.Constraint("Equal", 52, 56))
sketch1.addConstraint(Sketcher.Constraint("Equal", 56, 60))
sketch1.addConstraint(Sketcher.Constraint("Equal", 60, 64))
sketch1.addConstraint(Sketcher.Constraint("Equal", 64, 68))
sketch1.addConstraint(Sketcher.Constraint("Equal", 68, 72))
sketch1.addConstraint(Sketcher.Constraint("Equal", 72, 76))
sketch1.addConstraint(Sketcher.Constraint("Equal", 76, 80))
sketch1.addConstraint(Sketcher.Constraint("Symmetric", 3, 2, 45, 2, -1, 1))
sketch1.addConstraint(Sketcher.Constraint("Symmetric", 9, 2, 49, 2, -1, 1))
sketch1.addConstraint(Sketcher.Constraint("Symmetric", 10, 2, 50, 2, -1, 1))
sketch1.addConstraint(Sketcher.Constraint("Symmetric", 13, 2, 53, 2, -1, 1))
sketch1.addConstraint(Sketcher.Constraint("Symmetric", 14, 2, 54, 2, -1, 1))
sketch1.addConstraint(Sketcher.Constraint("Symmetric", 17, 2, 57, 2, -1, 1))
sketch1.addConstraint(Sketcher.Constraint("Symmetric", 18, 2, 58, 2, -1, 1))
sketch1.addConstraint(Sketcher.Constraint("Symmetric", 21, 2, 61, 2, -1, 1))
sketch1.addConstraint(Sketcher.Constraint("Symmetric", 22, 2, 62, 2, -1, 1))
sketch1.addConstraint(Sketcher.Constraint("Symmetric", 25, 2, 65, 2, -1, 1))
sketch1.addConstraint(Sketcher.Constraint("Symmetric", 29, 2, 69, 2, -1, 1))
sketch1.addConstraint(Sketcher.Constraint("Symmetric", 30, 2, 70, 2, -1, 1))
sketch1.addConstraint(Sketcher.Constraint("Symmetric", 33, 2, 73, 2, -1, 1))
sketch1.addConstraint(Sketcher.Constraint("Symmetric", 34, 2, 74, 2, -1, 1))
sketch1.addConstraint(Sketcher.Constraint("Symmetric", 37, 2, 77, 2, -1, 1))
sketch1.addConstraint(Sketcher.Constraint("Symmetric", 38, 2, 78, 2, -1, 1))
sketch1.addConstraint(Sketcher.Constraint("Symmetric", 41, 2, 81, 2, -1, 1))
sketch1.addConstraint(Sketcher.Constraint("Symmetric", 42, 2, 82, 2, -1, 1))
sketch1.addConstraint(Sketcher.Constraint("Symmetric", 22, 2, 29, 2, -2))
sketch1.addConstraint(Sketcher.Constraint("Symmetric", 21, 2, 30, 2, -2))
sketch1.addConstraint(Sketcher.Constraint("Symmetric", 18, 2, 33, 2, -2))
sketch1.addConstraint(Sketcher.Constraint("Symmetric", 17, 2, 34, 2, -2))
sketch1.addConstraint(Sketcher.Constraint("Symmetric", 14, 2, 37, 2, -2))
sketch1.addConstraint(Sketcher.Constraint("Symmetric", 13, 2, 38, 2, -2))
sketch1.addConstraint(Sketcher.Constraint("Symmetric", 10, 2, 41, 2, -2))
sketch1.addConstraint(Sketcher.Constraint("Symmetric", 9, 2, 42, 2, -2))
sketch1.addConstraint(Sketcher.Constraint("Symmetric", 2, 2, 5, 2, -1))
sketch1.addConstraint(Sketcher.Constraint("PointOnObject", 86, 2, -1))
sketch1.addConstraint(Sketcher.Constraint("Perpendicular", 3, 25))
sketch1.addConstraint(Sketcher.Constraint("Perpendicular", 5, 27))
sketch1.addConstraint(Sketcher.Constraint("Perpendicular", 9, 29))
sketch1.addConstraint(Sketcher.Constraint("Perpendicular", 10, 30))
sketch1.addConstraint(Sketcher.Constraint("Perpendicular", 11, 31))
sketch1.addConstraint(Sketcher.Constraint("Perpendicular", 13, 33))
sketch1.addConstraint(Sketcher.Constraint("Perpendicular", 14, 34))
sketch1.addConstraint(Sketcher.Constraint("Perpendicular", 15, 35))
sketch1.addConstraint(Sketcher.Constraint("Perpendicular", 17, 37))
sketch1.addConstraint(Sketcher.Constraint("Perpendicular", 19, 39))
sketch1.addConstraint(Sketcher.Constraint("Perpendicular", 21, 41))
sketch1.addConstraint(Sketcher.Constraint("Perpendicular", 23, 43))
sketch1.addConstraint(Sketcher.Constraint("Perpendicular", 25, 45))
sketch1.addConstraint(Sketcher.Constraint("Perpendicular", 27, 47))
sketch1.addConstraint(Sketcher.Constraint("Perpendicular", 29, 49))
sketch1.addConstraint(Sketcher.Constraint("Perpendicular", 31, 51))
sketch1.addConstraint(Sketcher.Constraint("Perpendicular", 33, 53))
sketch1.addConstraint(Sketcher.Constraint("Perpendicular", 35, 55))
sketch1.addConstraint(Sketcher.Constraint("Perpendicular", 37, 57))
sketch1.addConstraint(Sketcher.Constraint("Perpendicular", 39, 59))
sketch1.addConstraint(Sketcher.Constraint("Perpendicular", 41, 61))
sketch1.addConstraint(Sketcher.Constraint("Perpendicular", 43, 63))
sketch1.addConstraint(Sketcher.Constraint("Perpendicular", 45, 65))
sketch1.addConstraint(Sketcher.Constraint("Perpendicular", 47, 67))
sketch1.addConstraint(Sketcher.Constraint("Perpendicular", 49, 69))
sketch1.addConstraint(Sketcher.Constraint("Perpendicular", 51, 71))
sketch1.addConstraint(Sketcher.Constraint("Perpendicular", 53, 73))
sketch1.addConstraint(Sketcher.Constraint("Perpendicular", 55, 75))
sketch1.addConstraint(Sketcher.Constraint("Perpendicular", 57, 77))
sketch1.addConstraint(Sketcher.Constraint("Perpendicular", 59, 79))
sketch1.addConstraint(Sketcher.Constraint("Perpendicular", 61, 81))
sketch1.addConstraint(Sketcher.Constraint("Perpendicular", 63, 83))
sketch1.addConstraint(Sketcher.Constraint("Horizontal", 24, 1, 27, 2))
sketch1.addConstraint(Sketcher.Constraint("Horizontal", 23, 2, 28, 1))
sketch1.addConstraint(Sketcher.Constraint("Horizontal", 20, 1, 31, 2))
sketch1.addConstraint(Sketcher.Constraint("Horizontal", 19, 2, 32, 1))
sketch1.addConstraint(Sketcher.Constraint("Horizontal", 16, 1, 35, 2))
sketch1.addConstraint(Sketcher.Constraint("Horizontal", 7, 1, 44, 1))
sketch1.addConstraint(Sketcher.Constraint("Horizontal", 4, 2, 45, 2))
sketch1.addConstraint(Sketcher.Constraint("Horizontal", 3, 2, 46, 2))
sketch1.addConstraint(Sketcher.Constraint("Horizontal", 0, 1, 47, 2))
sketch1.addConstraint(Sketcher.Constraint("Horizontal", 64, 1, 67, 2))
sketch1.addConstraint(Sketcher.Constraint("Horizontal", 2, 2, 84, 2))
sketch1.addConstraint(Sketcher.Constraint("Horizontal", 6, 2, 85, 2))
sketch1.addConstraint(Sketcher.Constraint("Equal", 66, 4))
sketch1.addConstraint(Sketcher.Constraint("Equal", 9, 11))
sketch1.addConstraint(Sketcher.Constraint("Equal", 11, 13))
sketch1.addConstraint(Sketcher.Constraint("Equal", 10, 14))
sketch1.addConstraint(Sketcher.Constraint("Equal", 13, 15))
sketch1.addConstraint(Sketcher.Constraint("Equal", 15, 17))
sketch1.addConstraint(Sketcher.Constraint("Equal", 14, 18))
sketch1.addConstraint(Sketcher.Constraint("Equal", 17, 19))
sketch1.addConstraint(Sketcher.Constraint("Equal", 19, 21))
sketch1.addConstraint(Sketcher.Constraint("Equal", 18, 22))
sketch1.addConstraint(Sketcher.Constraint("Equal", 21, 23))
sketch1.addConstraint(Sketcher.Constraint("Equal", 23, 25))
sketch1.addConstraint(Sketcher.Constraint("Equal", 43, 45))
sketch1.addConstraint(Sketcher.Constraint("Radius", 0, 25.0))
sketch1.addConstraint(Sketcher.Constraint("Radius", 84, 15.0))
sketch1.addConstraint(Sketcher.Constraint("Angle", 10, Q("-108 deg")))
sketch1.addConstraint(Sketcher.Constraint("Angle", 14, Q("-126 deg")))
sketch1.addConstraint(Sketcher.Constraint("DistanceX", 26, 2, 26, 1, 2.4))
sketch1.addConstraint(Sketcher.Constraint("DistanceY", -1, 1, 1, 1, 3.0))
sketch1.addConstraint(Sketcher.Constraint("DistanceX", -1, 1, 3, 2, 30.0))
sketch1.addConstraint(Sketcher.Constraint("Distance", 10, 2.4))
sketch1.addConstraint(Sketcher.Constraint("Distance", 9, 5.565901))
sketch1.addConstraint(Sketcher.Constraint("DistanceX", -1, 1, 8, 1, 24.56549))
sketch1.addConstraint(Sketcher.Constraint("DistanceX", -1, 1, 9, 2, 28.902516))
sketch1.addConstraint(Sketcher.Constraint("DistanceX", -1, 1, 12, 1, 21.929093))
sketch1.addConstraint(Sketcher.Constraint("DistanceX", -1, 1, 13, 2, 24.975852))
pad1 = body.newObject("PartDesign::Pad", "Pad")
pad1.Profile = sketch1
pad1.Length = 30
pad1.Reversed = True

sketch2 = body.newObject("Sketcher::SketchObject", "Sketch001")
sketch2.AttachmentSupport = (doc.getObject("XZ_Plane"), [""])
sketch2.MapMode = "FlatFace"
sketch2.AttachmentOffset = App.Placement(Vector(0, 0, -30), App.Rotation())
sketch2.addGeometry(Part.Circle(Vector(0, 0, 0), Vector(0, 0, 1), 20), False)
sketch2.addConstraint(Sketcher.Constraint("Coincident", 0, 3, -1, 1))
sketch2.addConstraint(Sketcher.Constraint("Diameter", 0, 40.0))
pocket1 = body.newObject("PartDesign::Pocket", "Pocket")
pocket1.Profile = sketch2
pocket1.Length = 7.5
pocket1.Reversed = True

sketch3 = body.newObject("Sketcher::SketchObject", "Sketch002")
sketch3.AttachmentSupport = (doc.getObject("XZ_Plane"), [""])
sketch3.MapMode = "FlatFace"
sketch3.AttachmentOffset = App.Placement(Vector(0, 0, -7.5), App.Rotation())
sketch3.addGeometry(Part.Circle(Vector(0, 0, 0), Vector(0, 0, 1), 20), False)
sketch3.addConstraint(Sketcher.Constraint("Coincident", 0, 3, -1, 1))
sketch3.addConstraint(Sketcher.Constraint("Diameter", 0, 40.0))
pocket2 = body.newObject("PartDesign::Pocket", "Pocket001")
pocket2.Profile = sketch3
pocket2.Length = 7.5
pocket2.Reversed = True

doc.recompute()
